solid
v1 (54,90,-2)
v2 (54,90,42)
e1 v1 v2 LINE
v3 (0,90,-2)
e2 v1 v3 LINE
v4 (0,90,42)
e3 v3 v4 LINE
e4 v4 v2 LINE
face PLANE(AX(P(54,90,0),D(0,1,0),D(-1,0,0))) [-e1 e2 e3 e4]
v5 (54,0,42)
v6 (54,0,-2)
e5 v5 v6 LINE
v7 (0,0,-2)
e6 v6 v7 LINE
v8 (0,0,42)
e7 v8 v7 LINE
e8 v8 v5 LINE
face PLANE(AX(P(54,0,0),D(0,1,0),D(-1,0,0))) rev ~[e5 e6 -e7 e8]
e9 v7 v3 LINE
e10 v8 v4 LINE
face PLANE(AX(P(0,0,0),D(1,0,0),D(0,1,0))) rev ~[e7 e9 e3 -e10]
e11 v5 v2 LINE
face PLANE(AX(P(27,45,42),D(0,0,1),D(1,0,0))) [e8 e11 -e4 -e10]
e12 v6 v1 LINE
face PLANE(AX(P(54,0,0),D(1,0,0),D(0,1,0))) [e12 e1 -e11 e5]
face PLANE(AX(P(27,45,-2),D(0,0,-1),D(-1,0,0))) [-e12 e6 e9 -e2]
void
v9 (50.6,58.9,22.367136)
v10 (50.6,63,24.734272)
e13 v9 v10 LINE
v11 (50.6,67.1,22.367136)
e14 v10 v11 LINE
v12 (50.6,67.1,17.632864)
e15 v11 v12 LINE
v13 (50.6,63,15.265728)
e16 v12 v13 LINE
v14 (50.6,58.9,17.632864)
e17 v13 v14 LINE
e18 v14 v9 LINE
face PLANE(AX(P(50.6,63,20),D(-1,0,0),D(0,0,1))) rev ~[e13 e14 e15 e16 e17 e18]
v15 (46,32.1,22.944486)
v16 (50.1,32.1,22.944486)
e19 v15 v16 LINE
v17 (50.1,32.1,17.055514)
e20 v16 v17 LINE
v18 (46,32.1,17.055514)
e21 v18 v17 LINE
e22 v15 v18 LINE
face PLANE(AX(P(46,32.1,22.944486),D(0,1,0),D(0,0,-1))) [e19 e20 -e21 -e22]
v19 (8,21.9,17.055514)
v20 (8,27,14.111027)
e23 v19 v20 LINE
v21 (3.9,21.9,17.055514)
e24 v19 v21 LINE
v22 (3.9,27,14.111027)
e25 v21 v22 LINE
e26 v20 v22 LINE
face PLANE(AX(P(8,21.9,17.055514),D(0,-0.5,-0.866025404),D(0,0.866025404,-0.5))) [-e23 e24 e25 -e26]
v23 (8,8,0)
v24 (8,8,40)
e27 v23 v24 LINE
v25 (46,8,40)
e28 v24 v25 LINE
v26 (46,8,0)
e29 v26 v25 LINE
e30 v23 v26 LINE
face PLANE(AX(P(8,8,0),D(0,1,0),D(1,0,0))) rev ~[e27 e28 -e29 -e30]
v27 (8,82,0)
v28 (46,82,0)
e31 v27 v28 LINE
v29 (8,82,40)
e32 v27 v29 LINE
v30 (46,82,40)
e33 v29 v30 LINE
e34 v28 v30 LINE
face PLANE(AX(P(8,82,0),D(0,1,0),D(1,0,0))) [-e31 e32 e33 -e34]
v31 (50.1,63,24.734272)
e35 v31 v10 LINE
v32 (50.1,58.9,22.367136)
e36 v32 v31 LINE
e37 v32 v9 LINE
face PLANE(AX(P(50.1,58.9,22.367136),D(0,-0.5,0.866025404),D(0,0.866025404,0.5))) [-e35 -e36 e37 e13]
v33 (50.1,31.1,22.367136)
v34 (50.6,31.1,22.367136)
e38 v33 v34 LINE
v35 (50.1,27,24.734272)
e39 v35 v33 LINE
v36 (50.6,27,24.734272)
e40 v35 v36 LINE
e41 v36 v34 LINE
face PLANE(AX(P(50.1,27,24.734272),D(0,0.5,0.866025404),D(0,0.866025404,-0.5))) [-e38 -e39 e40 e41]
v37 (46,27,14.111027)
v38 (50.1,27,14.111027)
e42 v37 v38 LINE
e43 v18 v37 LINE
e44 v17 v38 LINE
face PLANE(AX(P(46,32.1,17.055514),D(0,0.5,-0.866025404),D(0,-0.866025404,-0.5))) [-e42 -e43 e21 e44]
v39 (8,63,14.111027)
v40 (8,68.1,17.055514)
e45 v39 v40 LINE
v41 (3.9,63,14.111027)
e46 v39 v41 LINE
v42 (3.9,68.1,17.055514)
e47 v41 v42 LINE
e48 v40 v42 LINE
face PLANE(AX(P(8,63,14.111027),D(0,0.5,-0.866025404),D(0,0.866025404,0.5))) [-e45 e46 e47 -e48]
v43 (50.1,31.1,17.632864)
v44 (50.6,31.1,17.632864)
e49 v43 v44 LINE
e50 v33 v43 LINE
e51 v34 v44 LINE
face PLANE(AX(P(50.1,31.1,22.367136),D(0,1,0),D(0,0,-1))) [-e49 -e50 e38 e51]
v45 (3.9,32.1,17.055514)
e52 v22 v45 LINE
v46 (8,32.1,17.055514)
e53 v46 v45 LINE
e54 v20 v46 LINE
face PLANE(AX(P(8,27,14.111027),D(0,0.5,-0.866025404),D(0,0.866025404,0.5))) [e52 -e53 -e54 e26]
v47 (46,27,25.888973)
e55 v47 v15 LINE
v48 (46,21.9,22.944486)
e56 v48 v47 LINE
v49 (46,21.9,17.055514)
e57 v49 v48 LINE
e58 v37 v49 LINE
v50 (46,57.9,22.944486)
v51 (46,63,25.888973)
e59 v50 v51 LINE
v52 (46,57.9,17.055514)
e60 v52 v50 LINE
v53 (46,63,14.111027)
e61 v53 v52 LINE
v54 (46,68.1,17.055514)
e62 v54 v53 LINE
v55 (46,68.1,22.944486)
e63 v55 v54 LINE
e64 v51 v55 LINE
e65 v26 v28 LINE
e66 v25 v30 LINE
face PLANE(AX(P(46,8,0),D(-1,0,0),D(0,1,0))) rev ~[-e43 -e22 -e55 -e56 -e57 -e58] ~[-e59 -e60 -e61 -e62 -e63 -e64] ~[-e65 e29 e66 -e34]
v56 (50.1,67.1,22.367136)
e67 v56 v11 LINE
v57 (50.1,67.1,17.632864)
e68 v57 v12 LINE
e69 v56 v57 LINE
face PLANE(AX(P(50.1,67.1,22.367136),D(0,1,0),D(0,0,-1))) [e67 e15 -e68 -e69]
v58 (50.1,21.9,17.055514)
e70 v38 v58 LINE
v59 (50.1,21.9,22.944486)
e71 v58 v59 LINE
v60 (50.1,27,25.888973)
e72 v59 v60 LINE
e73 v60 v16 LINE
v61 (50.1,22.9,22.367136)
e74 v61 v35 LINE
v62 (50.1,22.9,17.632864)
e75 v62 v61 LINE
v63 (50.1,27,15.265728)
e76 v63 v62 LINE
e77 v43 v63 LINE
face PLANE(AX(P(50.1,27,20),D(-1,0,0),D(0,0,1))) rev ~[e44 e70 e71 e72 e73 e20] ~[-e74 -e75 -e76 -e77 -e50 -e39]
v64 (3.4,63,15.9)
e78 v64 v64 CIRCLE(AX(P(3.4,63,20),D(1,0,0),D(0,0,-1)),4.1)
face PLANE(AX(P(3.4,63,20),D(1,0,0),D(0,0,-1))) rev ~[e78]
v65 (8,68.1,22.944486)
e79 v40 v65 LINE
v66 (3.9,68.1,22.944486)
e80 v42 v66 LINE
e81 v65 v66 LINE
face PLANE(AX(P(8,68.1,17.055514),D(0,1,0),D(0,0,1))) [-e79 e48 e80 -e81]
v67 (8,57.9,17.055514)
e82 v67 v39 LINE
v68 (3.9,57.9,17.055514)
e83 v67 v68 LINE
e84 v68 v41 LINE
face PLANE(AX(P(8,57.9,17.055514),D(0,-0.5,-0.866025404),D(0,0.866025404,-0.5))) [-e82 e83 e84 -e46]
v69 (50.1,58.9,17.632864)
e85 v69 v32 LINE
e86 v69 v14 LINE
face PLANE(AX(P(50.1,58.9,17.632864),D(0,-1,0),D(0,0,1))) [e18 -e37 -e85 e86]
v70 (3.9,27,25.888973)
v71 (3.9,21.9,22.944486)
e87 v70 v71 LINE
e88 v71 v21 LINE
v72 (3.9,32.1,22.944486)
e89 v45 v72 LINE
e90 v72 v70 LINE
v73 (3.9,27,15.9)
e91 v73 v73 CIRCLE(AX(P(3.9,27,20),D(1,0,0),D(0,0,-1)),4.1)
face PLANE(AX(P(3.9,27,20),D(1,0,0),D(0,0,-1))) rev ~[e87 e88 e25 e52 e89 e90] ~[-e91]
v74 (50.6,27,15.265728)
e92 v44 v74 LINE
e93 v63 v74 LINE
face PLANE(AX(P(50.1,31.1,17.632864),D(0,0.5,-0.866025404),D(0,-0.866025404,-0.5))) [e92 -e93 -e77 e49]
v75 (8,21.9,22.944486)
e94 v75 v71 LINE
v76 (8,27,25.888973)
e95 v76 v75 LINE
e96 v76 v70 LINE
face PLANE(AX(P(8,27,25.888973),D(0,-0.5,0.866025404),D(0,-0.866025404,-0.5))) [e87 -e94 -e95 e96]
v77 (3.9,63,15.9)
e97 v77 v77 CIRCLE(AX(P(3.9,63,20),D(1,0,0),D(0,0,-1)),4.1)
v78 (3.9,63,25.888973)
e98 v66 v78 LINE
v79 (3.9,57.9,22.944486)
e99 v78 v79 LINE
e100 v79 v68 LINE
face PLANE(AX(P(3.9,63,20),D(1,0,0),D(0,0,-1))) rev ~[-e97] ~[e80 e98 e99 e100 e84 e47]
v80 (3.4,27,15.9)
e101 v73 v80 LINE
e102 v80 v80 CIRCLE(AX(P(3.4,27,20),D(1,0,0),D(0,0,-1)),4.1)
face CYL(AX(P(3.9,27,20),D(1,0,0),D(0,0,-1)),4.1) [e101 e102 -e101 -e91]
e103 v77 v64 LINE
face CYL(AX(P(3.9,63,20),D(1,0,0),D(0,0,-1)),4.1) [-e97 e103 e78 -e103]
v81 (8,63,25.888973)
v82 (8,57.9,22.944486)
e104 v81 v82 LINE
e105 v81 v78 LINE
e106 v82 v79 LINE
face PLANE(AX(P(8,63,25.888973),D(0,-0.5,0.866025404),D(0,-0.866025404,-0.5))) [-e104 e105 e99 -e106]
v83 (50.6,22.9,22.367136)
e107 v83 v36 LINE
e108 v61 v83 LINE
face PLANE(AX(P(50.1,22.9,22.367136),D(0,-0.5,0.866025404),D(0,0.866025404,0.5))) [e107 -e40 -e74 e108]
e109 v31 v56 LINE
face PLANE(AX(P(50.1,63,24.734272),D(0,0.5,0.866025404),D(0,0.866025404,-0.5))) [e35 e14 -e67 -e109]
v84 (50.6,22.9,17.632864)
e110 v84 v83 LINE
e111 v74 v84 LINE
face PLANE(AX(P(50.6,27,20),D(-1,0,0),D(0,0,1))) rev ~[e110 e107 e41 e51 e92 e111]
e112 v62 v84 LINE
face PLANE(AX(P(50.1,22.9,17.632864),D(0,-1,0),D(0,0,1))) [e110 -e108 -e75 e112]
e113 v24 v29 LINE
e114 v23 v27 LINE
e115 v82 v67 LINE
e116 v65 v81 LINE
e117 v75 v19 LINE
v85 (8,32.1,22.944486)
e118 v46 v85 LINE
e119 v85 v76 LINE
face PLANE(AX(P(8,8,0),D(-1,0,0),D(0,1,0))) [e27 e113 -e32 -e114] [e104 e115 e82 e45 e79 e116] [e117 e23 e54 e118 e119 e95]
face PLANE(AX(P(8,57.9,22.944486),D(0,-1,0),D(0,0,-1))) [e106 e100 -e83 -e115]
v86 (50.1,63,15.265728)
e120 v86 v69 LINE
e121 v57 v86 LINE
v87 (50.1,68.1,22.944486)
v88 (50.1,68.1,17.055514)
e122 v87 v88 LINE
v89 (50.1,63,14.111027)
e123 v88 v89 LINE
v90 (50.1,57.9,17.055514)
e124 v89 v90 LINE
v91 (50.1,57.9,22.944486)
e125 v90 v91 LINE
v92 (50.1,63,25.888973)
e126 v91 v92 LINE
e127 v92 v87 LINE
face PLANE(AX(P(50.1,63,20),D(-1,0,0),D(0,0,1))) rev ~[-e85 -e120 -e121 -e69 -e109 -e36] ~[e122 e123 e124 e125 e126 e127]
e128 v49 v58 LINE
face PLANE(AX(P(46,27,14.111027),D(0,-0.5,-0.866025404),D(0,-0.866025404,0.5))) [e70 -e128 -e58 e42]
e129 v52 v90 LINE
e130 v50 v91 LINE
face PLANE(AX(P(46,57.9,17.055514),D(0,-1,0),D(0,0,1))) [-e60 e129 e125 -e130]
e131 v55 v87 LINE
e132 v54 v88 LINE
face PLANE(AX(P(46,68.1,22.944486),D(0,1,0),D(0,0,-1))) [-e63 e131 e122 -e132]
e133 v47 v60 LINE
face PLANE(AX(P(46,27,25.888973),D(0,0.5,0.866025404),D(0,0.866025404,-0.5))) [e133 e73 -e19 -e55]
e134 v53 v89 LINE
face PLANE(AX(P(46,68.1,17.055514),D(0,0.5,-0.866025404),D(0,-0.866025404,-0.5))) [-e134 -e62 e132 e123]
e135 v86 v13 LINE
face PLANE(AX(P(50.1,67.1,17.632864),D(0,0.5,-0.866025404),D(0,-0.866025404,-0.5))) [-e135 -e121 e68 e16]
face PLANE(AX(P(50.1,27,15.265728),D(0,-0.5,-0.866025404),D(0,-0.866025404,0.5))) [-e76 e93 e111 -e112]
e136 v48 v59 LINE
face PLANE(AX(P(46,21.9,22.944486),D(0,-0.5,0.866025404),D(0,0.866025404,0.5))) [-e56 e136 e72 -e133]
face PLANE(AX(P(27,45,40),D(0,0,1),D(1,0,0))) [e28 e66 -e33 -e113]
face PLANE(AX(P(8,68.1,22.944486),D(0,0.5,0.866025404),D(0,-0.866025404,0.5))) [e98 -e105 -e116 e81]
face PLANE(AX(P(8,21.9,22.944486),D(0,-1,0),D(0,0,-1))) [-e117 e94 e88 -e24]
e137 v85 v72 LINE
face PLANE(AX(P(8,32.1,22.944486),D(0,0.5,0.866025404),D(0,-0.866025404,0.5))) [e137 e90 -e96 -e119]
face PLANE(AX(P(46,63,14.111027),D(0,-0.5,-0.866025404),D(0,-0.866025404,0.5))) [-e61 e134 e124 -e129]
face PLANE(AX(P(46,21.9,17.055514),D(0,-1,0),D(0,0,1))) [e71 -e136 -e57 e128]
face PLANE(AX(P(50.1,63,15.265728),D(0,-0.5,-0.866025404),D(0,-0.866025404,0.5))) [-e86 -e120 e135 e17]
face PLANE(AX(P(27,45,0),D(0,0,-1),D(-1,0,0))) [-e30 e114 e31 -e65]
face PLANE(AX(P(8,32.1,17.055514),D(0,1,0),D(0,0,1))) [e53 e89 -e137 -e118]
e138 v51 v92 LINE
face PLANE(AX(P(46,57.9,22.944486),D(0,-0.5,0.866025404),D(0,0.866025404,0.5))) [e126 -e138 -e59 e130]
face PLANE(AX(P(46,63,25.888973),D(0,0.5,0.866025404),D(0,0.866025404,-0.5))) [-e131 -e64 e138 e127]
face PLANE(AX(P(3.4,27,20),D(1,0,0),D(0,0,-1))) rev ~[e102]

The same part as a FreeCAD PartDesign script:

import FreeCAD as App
import Part
import Sketcher

V = App.Vector
Q = App.Units.Quantity

doc = App.newDocument("Part")
body = doc.addObject("PartDesign::Body", "Body")

sketch1 = body.newObject("Sketcher::SketchObject", "Sketch")
sketch1.AttachmentSupport = (doc.getObject("XY_Plane"), [""])
sketch1.MapMode = "FlatFace"
sketch1.addGeometry([
    Part.LineSegment(V(0, 90, 0), V(0, 0, 0)),
    Part.LineSegment(V(0, 0, 0), V(54, 0, 0)),
    Part.LineSegment(V(54, 0, 0), V(54, 90, 0)),
    Part.LineSegment(V(54, 90, 0), V(0, 90, 0)),
    Part.LineSegment(V(46, 8, 0), V(8, 8, 0)),
    Part.LineSegment(V(8, 8, 0), V(8, 82, 0)),
    Part.LineSegment(V(8, 82, 0), V(46, 82, 0)),
    Part.LineSegment(V(46, 82, 0), V(46, 8, 0)),
], False)
sketch1.addConstraint([
    Sketcher.Constraint("Coincident", 0, 2, 1, 1),
    Sketcher.Constraint("Coincident", 1, 2, 2, 1),
    Sketcher.Constraint("Coincident", 2, 2, 3, 1),
    Sketcher.Constraint("Coincident", 3, 2, 0, 1),
    Sketcher.Constraint("Coincident", 4, 2, 5, 1),
    Sketcher.Constraint("Coincident", 5, 2, 6, 1),
    Sketcher.Constraint("Coincident", 6, 2, 7, 1),
    Sketcher.Constraint("Coincident", 7, 2, 4, 1),
    Sketcher.Constraint("Vertical", 0),
    Sketcher.Constraint("Horizontal", 1),
    Sketcher.Constraint("Vertical", 2),
    Sketcher.Constraint("Horizontal", 3),
    Sketcher.Constraint("Horizontal", 4),
    Sketcher.Constraint("Vertical", 5),
    Sketcher.Constraint("Horizontal", 6),
    Sketcher.Constraint("Vertical", 7),
    Sketcher.Constraint("Coincident", 0, 2, -1, 1),
    Sketcher.Constraint("DistanceX", 1, 1, 1, 2, 54.0),
    Sketcher.Constraint("DistanceX", 4, 2, 4, 1, 38.0),
    Sketcher.Constraint("DistanceY", 0, 2, 0, 1, 90.0),
    Sketcher.Constraint("DistanceY", 5, 1, 5, 2, 74.0),
    Sketcher.Constraint("DistanceX", -1, 1, 4, 2, 8.0),
    Sketcher.Constraint("DistanceY", -1, 1, 4, 2, 8.0),
])
pad1 = body.newObject("PartDesign::Pad", "Pad")
pad1.Profile = sketch1
pad1.Length = 40

sketch2 = body.newObject("Sketcher::SketchObject", "Sketch001")
sketch2.AttachmentSupport = (doc.getObject("YZ_Plane"), [""])
sketch2.MapMode = "FlatFace"
sketch2.AttachmentOffset = App.Placement(V(0, 0, 46), App.Rotation())
sketch2.addGeometry([
    Part.LineSegment(V(63, 26, 0), V(68, 23, 0)),
    Part.LineSegment(V(68, 23, 0), V(68, 17, 0)),
    Part.LineSegment(V(68, 17, 0), V(63, 14, 0)),
    Part.LineSegment(V(63, 14, 0), V(58, 17, 0)),
    Part.LineSegment(V(58, 17, 0), V(58, 23, 0)),
    Part.LineSegment(V(58, 23, 0), V(63, 26, 0)),
    Part.LineSegment(V(27, 26, 0), V(32, 23, 0)),
    Part.LineSegment(V(32, 23, 0), V(32, 17, 0)),
    Part.LineSegment(V(32, 17, 0), V(27, 14, 0)),
    Part.LineSegment(V(27, 14, 0), V(22, 17, 0)),
    Part.LineSegment(V(22, 17, 0), V(22, 23, 0)),
    Part.LineSegment(V(22, 23, 0), V(27, 26, 0)),
], False)
sketch2.addConstraint([
    Sketcher.Constraint("Coincident", 0, 2, 1, 1),
    Sketcher.Constraint("Coincident", 1, 2, 2, 1),
    Sketcher.Constraint("Coincident", 2, 2, 3, 1),
    Sketcher.Constraint("Coincident", 3, 2, 4, 1),
    Sketcher.Constraint("Coincident", 4, 2, 5, 1),
    Sketcher.Constraint("Coincident", 5, 2, 0, 1),
    Sketcher.Constraint("Coincident", 6, 2, 7, 1),
    Sketcher.Constraint("Coincident", 7, 2, 8, 1),
    Sketcher.Constraint("Coincident", 8, 2, 9, 1),
    Sketcher.Constraint("Coincident", 9, 2, 10, 1),
    Sketcher.Constraint("Coincident", 10, 2, 11, 1),
    Sketcher.Constraint("Coincident", 11, 2, 6, 1),
    Sketcher.Constraint("Vertical", 1),
    Sketcher.Constraint("Vertical", 4),
    Sketcher.Constraint("Vertical", 7),
    Sketcher.Constraint("Vertical", 10),
    Sketcher.Constraint("Parallel", 0, 3),
    Sketcher.Constraint("Parallel", 2, 5),
    Sketcher.Constraint("Parallel", 3, 6),
    Sketcher.Constraint("Parallel", 5, 8),
    Sketcher.Constraint("Parallel", 6, 9),
    Sketcher.Constraint("Parallel", 8, 11),
    Sketcher.Constraint("Horizontal", 1, 2, 3, 2),
    Sketcher.Constraint("Horizontal", 0, 2, 4, 2),
    Sketcher.Constraint("Horizontal", 4, 2, 6, 2),
    Sketcher.Constraint("Horizontal", 3, 2, 7, 2),
    Sketcher.Constraint("Horizontal", 2, 2, 8, 2),
    Sketcher.Constraint("Horizontal", 7, 2, 9, 2),
    Sketcher.Constraint("Horizontal", 6, 2, 10, 2),
    Sketcher.Constraint("Vertical", 2, 2, 5, 2),
    Sketcher.Constraint("Angle", 0, Q("-30 deg")),
    Sketcher.Constraint("DistanceX", -1, 1, 2, 2, 63.0),
    Sketcher.Constraint("DistanceX", -1, 1, 8, 2, 27.0),
    Sketcher.Constraint("DistanceX", -1, 1, 0, 2, 68.1),
    Sketcher.Constraint("DistanceY", 1, 2, 1, 1, 5.888973),
    Sketcher.Constraint("DistanceY", -1, 1, 0, 2, 22.944486),
])
pocket1 = body.newObject("PartDesign::Pocket", "Pocket")
pocket1.Profile = sketch2
pocket1.Length = 4.1
pocket1.Reversed = True

sketch3 = body.newObject("Sketcher::SketchObject", "Sketch002")
sketch3.AttachmentSupport = (doc.getObject("YZ_Plane"), [""])
sketch3.MapMode = "FlatFace"
sketch3.AttachmentOffset = App.Placement(V(0, 0, 50.1), App.Rotation())
sketch3.addGeometry([
    Part.LineSegment(V(22.9, 17.6, 0), V(22.9, 22.4, 0)),
    Part.LineSegment(V(22.9, 22.4, 0), V(27, 24.7, 0)),
    Part.LineSegment(V(27, 24.7, 0), V(31.1, 22.4, 0)),
    Part.LineSegment(V(31.1, 22.4, 0), V(31.1, 17.6, 0)),
    Part.LineSegment(V(31.1, 17.6, 0), V(27, 15.3, 0)),
    Part.LineSegment(V(27, 15.3, 0), V(22.9, 17.6, 0)),
    Part.LineSegment(V(63, 24.7, 0), V(67.1, 22.4, 0)),
    Part.LineSegment(V(67.1, 22.4, 0), V(67.1, 17.6, 0)),
    Part.LineSegment(V(67.1, 17.6, 0), V(63, 15.3, 0)),
    Part.LineSegment(V(63, 15.3, 0), V(58.9, 17.6, 0)),
    Part.LineSegment(V(58.9, 17.6, 0), V(58.9, 22.4, 0)),
    Part.LineSegment(V(58.9, 22.4, 0), V(63, 24.7, 0)),
], False)
sketch3.addConstraint([
    Sketcher.Constraint("Coincident", 0, 2, 1, 1),
    Sketcher.Constraint("Coincident", 1, 2, 2, 1),
    Sketcher.Constraint("Coincident", 2, 2, 3, 1),
    Sketcher.Constraint("Coincident", 3, 2, 4, 1),
    Sketcher.Constraint("Coincident", 4, 2, 5, 1),
    Sketcher.Constraint("Coincident", 5, 2, 0, 1),
    Sketcher.Constraint("Coincident", 6, 2, 7, 1),
    Sketcher.Constraint("Coincident", 7, 2, 8, 1),
    Sketcher.Constraint("Coincident", 8, 2, 9, 1),
    Sketcher.Constraint("Coincident", 9, 2, 10, 1),
    Sketcher.Constraint("Coincident", 10, 2, 11, 1),
    Sketcher.Constraint("Coincident", 11, 2, 6, 1),
    Sketcher.Constraint("Vertical", 0),
    Sketcher.Constraint("Vertical", 3),
    Sketcher.Constraint("Vertical", 7),
    Sketcher.Constraint("Vertical", 10),
    Sketcher.Constraint("Parallel", 1, 4),
    Sketcher.Constraint("Parallel", 2, 5),
    Sketcher.Constraint("Parallel", 5, 6),
    Sketcher.Constraint("Parallel", 4, 8),
    Sketcher.Constraint("Parallel", 6, 9),
    Sketcher.Constraint("Parallel", 8, 11),
    Sketcher.Constraint("Horizontal", 0, 2, 2, 2),
    Sketcher.Constraint("Horizontal", 3, 2, 5, 2),
    Sketcher.Constraint("Horizontal", 2, 2, 6, 2),
    Sketcher.Constraint("Horizontal", 5, 2, 7, 2),
    Sketcher.Constraint("Horizontal", 4, 2, 8, 2),
    Sketcher.Constraint("Horizontal", 7, 2, 9, 2),
    Sketcher.Constraint("Horizontal", 6, 2, 10, 2),
    Sketcher.Constraint("Vertical", 1, 2, 4, 2),
    Sketcher.Constraint("Angle", 1, Q("30 deg")),
    Sketcher.Constraint("DistanceX", -1, 1, 1, 2, 27.0),
    Sketcher.Constraint("DistanceX", -1, 1, 8, 2, 63.0),
    Sketcher.Constraint("DistanceX", -1, 1, 0, 2, 22.9),
    Sketcher.Constraint("DistanceY", 0, 1, 0, 2, 4.734272),
    Sketcher.Constraint("DistanceY", -1, 1, 0, 2, 22.367136),
])
pocket2 = body.newObject("PartDesign::Pocket", "Pocket001")
pocket2.Profile = sketch3
pocket2.Length = 0.5
pocket2.Reversed = True

sketch4 = body.newObject("Sketcher::SketchObject", "Sketch003")
sketch4.AttachmentSupport = (doc.getObject("YZ_Plane"), [""])
sketch4.MapMode = "FlatFace"
sketch4.AttachmentOffset = App.Placement(V(0, 0, 8), App.Rotation())
sketch4.addGeometry([
    Part.LineSegment(V(63, 14, 0), V(68, 17, 0)),
    Part.LineSegment(V(68, 17, 0), V(68, 23, 0)),
    Part.LineSegment(V(68, 23, 0), V(63, 26, 0)),
    Part.LineSegment(V(63, 26, 0), V(58, 23, 0)),
    Part.LineSegment(V(58, 23, 0), V(58, 17, 0)),
    Part.LineSegment(V(58, 17, 0), V(63, 14, 0)),
    Part.LineSegment(V(27, 14, 0), V(32, 17, 0)),
    Part.LineSegment(V(32, 17, 0), V(32, 23, 0)),
    Part.LineSegment(V(32, 23, 0), V(27, 26, 0)),
    Part.LineSegment(V(27, 26, 0), V(22, 23, 0)),
    Part.LineSegment(V(22, 23, 0), V(22, 17, 0)),
    Part.LineSegment(V(22, 17, 0), V(27, 14, 0)),
], False)
sketch4.addConstraint([
    Sketcher.Constraint("Coincident", 0, 2, 1, 1),
    Sketcher.Constraint("Coincident", 1, 2, 2, 1),
    Sketcher.Constraint("Coincident", 2, 2, 3, 1),
    Sketcher.Constraint("Coincident", 3, 2, 4, 1),
    Sketcher.Constraint("Coincident", 4, 2, 5, 1),
    Sketcher.Constraint("Coincident", 5, 2, 0, 1),
    Sketcher.Constraint("Coincident", 6, 2, 7, 1),
    Sketcher.Constraint("Coincident", 7, 2, 8, 1),
    Sketcher.Constraint("Coincident", 8, 2, 9, 1),
    Sketcher.Constraint("Coincident", 9, 2, 10, 1),
    Sketcher.Constraint("Coincident", 10, 2, 11, 1),
    Sketcher.Constraint("Coincident", 11, 2, 6, 1),
    Sketcher.Constraint("Vertical", 1),
    Sketcher.Constraint("Vertical", 4),
    Sketcher.Constraint("Vertical", 7),
    Sketcher.Constraint("Vertical", 10),
    Sketcher.Constraint("Parallel", 0, 3),
    Sketcher.Constraint("Parallel", 2, 5),
    Sketcher.Constraint("Parallel", 3, 6),
    Sketcher.Constraint("Parallel", 5, 8),
    Sketcher.Constraint("Parallel", 6, 9),
    Sketcher.Constraint("Parallel", 8, 11),
    Sketcher.Constraint("Horizontal", 1, 2, 3, 2),
    Sketcher.Constraint("Horizontal", 0, 2, 4, 2),
    Sketcher.Constraint("Horizontal", 4, 2, 6, 2),
    Sketcher.Constraint("Horizontal", 3, 2, 7, 2),
    Sketcher.Constraint("Horizontal", 2, 2, 8, 2),
    Sketcher.Constraint("Horizontal", 7, 2, 9, 2),
    Sketcher.Constraint("Horizontal", 6, 2, 10, 2),
    Sketcher.Constraint("Vertical", 2, 2, 5, 2),
    Sketcher.Constraint("Angle", 0, Q("30 deg")),
    Sketcher.Constraint("DistanceX", -1, 1, 2, 2, 63.0),
    Sketcher.Constraint("DistanceX", -1, 1, 8, 2, 27.0),
    Sketcher.Constraint("DistanceX", -1, 1, 0, 2, 68.1),
    Sketcher.Constraint("DistanceY", 1, 1, 1, 2, 5.888973),
    Sketcher.Constraint("DistanceY", -1, 1, 0, 2, 17.055514),
])
pocket3 = body.newObject("PartDesign::Pocket", "Pocket002")
pocket3.Profile = sketch4
pocket3.Length = 4.1

sketch5 = body.newObject("Sketcher::SketchObject", "Sketch004")
sketch5.AttachmentSupport = (doc.getObject("YZ_Plane"), [""])
sketch5.MapMode = "FlatFace"
sketch5.AttachmentOffset = App.Placement(V(0, 0, 3.9), App.Rotation())
sketch5.addGeometry([
    Part.Circle(V(63, 20, 0), V(0, 0, 1), 4.1),
    Part.Circle(V(27, 20, 0), V(0, 0, 1), 4.1),
], False)
sketch5.addConstraint([
    Sketcher.Constraint("Equal", 0, 1),
    Sketcher.Constraint("Horizontal", 0, 3, 1, 3),
    Sketcher.Constraint("Diameter", 0, 8.2),
    Sketcher.Constraint("DistanceX", -1, 1, 0, 3, 63.0),
    Sketcher.Constraint("DistanceY", -1, 1, 0, 3, 20.0),
    Sketcher.Constraint("DistanceX", -1, 1, 1, 3, 27.0),
])
pocket4 = body.newObject("PartDesign::Pocket", "Pocket003")
pocket4.Profile = sketch5
pocket4.Length = 0.5

sketch6 = body.newObject("Sketcher::SketchObject", "Sketch005")
sketch6.AttachmentSupport = (doc.getObject("XY_Plane"), [""])
sketch6.MapMode = "FlatFace"
sketch6.AttachmentOffset = App.Placement(V(0, 0, 40), App.Rotation())
sketch6.addGeometry([
    Part.LineSegment(V(0, 90, 0), V(0, 0, 0)),
    Part.LineSegment(V(0, 0, 0), V(54, 0, 0)),
    Part.LineSegment(V(54, 0, 0), V(54, 90, 0)),
    Part.LineSegment(V(54, 90, 0), V(0, 90, 0)),
], False)
sketch6.addConstraint([
    Sketcher.Constraint("Coincident", 0, 2, 1, 1),
    Sketcher.Constraint("Coincident", 1, 2, 2, 1),
    Sketcher.Constraint("Coincident", 2, 2, 3, 1),
    Sketcher.Constraint("Coincident", 3, 2, 0, 1),
    Sketcher.Constraint("Vertical", 0),
    Sketcher.Constraint("Horizontal", 1),
    Sketcher.Constraint("Vertical", 2),
    Sketcher.Constraint("Horizontal", 3),
    Sketcher.Constraint("Coincident", 0, 2, -1, 1),
    Sketcher.Constraint("DistanceX", 1, 1, 1, 2, 54.0),
    Sketcher.Constraint("DistanceY", 0, 2, 0, 1, 90.0),
])
pad2 = body.newObject("PartDesign::Pad", "Pad001")
pad2.Profile = sketch6
pad2.Length = 2

sketch7 = body.newObject("Sketcher::SketchObject", "Sketch006")
sketch7.AttachmentSupport = (doc.getObject("XY_Plane"), [""])
sketch7.MapMode = "FlatFace"
sketch7.addGeometry([
    Part.LineSegment(V(54, 90, 0), V(54, 0, 0)),
    Part.LineSegment(V(54, 0, 0), V(0, 0, 0)),
    Part.LineSegment(V(0, 0, 0), V(0, 90, 0)),
    Part.LineSegment(V(0, 90, 0), V(54, 90, 0)),
], False)
sketch7.addConstraint([
    Sketcher.Constraint("Coincident", 0, 2, 1, 1),
    Sketcher.Constraint("Coincident", 1, 2, 2, 1),
    Sketcher.Constraint("Coincident", 2, 2, 3, 1),
    Sketcher.Constraint("Coincident", 3, 2, 0, 1),
    Sketcher.Constraint("Vertical", 0),
    Sketcher.Constraint("Horizontal", 1),
    Sketcher.Constraint("Vertical", 2),
    Sketcher.Constraint("Horizontal", 3),
    Sketcher.Constraint("Coincident", 1, 2, -1, 1),
    Sketcher.Constraint("DistanceX", 1, 2, 1, 1, 54.0),
    Sketcher.Constraint("DistanceY", 0, 2, 0, 1, 90.0),
])
pad3 = body.newObject("PartDesign::Pad", "Pad002")
pad3.Profile = sketch7
pad3.Length = 2
pad3.Reversed = True

doc.recompute()
